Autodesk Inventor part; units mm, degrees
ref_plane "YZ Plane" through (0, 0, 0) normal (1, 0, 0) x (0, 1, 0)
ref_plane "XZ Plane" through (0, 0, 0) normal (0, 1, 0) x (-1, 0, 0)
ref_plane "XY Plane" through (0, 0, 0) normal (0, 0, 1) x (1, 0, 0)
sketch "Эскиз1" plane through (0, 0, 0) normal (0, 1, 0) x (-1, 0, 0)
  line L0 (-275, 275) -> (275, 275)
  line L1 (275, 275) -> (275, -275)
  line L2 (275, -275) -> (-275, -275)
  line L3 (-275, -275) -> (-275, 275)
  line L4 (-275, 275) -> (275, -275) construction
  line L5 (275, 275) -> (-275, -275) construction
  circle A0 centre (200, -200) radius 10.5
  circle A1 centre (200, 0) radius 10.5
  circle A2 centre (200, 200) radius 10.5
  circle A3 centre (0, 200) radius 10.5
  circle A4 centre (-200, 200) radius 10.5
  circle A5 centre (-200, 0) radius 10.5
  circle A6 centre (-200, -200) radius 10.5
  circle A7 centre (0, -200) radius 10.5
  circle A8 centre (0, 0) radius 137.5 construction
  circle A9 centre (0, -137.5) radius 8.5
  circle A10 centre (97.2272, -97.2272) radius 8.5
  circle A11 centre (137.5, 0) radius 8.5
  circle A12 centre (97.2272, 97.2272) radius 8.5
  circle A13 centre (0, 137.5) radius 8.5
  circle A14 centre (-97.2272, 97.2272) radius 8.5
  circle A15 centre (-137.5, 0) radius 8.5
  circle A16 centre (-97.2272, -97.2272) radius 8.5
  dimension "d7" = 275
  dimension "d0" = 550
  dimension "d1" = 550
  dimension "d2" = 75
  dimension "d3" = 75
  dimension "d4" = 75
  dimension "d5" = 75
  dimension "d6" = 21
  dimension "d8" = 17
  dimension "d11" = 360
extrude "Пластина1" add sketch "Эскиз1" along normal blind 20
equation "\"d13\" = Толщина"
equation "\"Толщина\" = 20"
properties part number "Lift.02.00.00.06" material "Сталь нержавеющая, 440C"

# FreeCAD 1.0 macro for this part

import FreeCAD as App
import Part
import Sketcher
from FreeCAD import Vector


def add_polygon(sketch, points):
    """Adds a closed chain of lines whose ends are joined by coincident constraints."""
    first, n = sketch.GeometryCount, len(points)
    for a, b in zip(points, points[1:] + points[:1]):
        sketch.addGeometry(Part.LineSegment(App.Vector(*a, 0), App.Vector(*b, 0)), False)
    for i in range(n):
        sketch.addConstraint(Sketcher.Constraint("Coincident", first + i, 2, first + (i + 1) % n, 1))

doc = App.newDocument("Part")
body = doc.addObject("PartDesign::Body", "Body")

# Sketch on XZ plane
sketch1 = body.newObject("Sketcher::SketchObject", "Sketch")
sketch1.AttachmentSupport = (doc.getObject("XZ_Plane"), [""])
sketch1.MapMode = "FlatFace"
add_polygon(sketch1, [(-275, 275), (275, 275), (275, -275), (-275, -275)])  # lines 0-3
sketch1.addGeometry(Part.Circle(Vector(200, -200, 0), Vector(0, 0, 1), 10), False)  # 4
sketch1.addGeometry(Part.Circle(Vector(97, -97, 0), Vector(0, 0, 1), 8), False)  # 5
sketch1.addGeometry(Part.Circle(Vector(0, -200, 0), Vector(0, 0, 1), 10), False)  # 6
sketch1.addGeometry(Part.Circle(Vector(-200, -200, 0), Vector(0, 0, 1), 10), False)  # 7
sketch1.addGeometry(Part.Circle(Vector(0, -138, 0), Vector(0, 0, 1), 8), False)  # 8
sketch1.addGeometry(Part.Circle(Vector(-97, -97, 0), Vector(0, 0, 1), 8), False)  # 9
sketch1.addGeometry(Part.Circle(Vector(200, 0, 0), Vector(0, 0, 1), 10), False)  # 10
sketch1.addGeometry(Part.Circle(Vector(138, 0, 0), Vector(0, 0, 1), 8), False)  # 11
sketch1.addGeometry(Part.Circle(Vector(97, 97, 0), Vector(0, 0, 1), 8), False)  # 12
sketch1.addGeometry(Part.Circle(Vector(200, 200, 0), Vector(0, 0, 1), 10), False)  # 13
sketch1.addGeometry(Part.Circle(Vector(-97, 97, 0), Vector(0, 0, 1), 8), False)  # 14
sketch1.addGeometry(Part.Circle(Vector(-138, 0, 0), Vector(0, 0, 1), 8), False)  # 15
sketch1.addGeometry(Part.Circle(Vector(-200, 0, 0), Vector(0, 0, 1), 10), False)  # 16
sketch1.addGeometry(Part.Circle(Vector(0, 138, 0), Vector(0, 0, 1), 8), False)  # 17
sketch1.addGeometry(Part.Circle(Vector(0, 200, 0), Vector(0, 0, 1), 10), False)  # 18
sketch1.addGeometry(Part.Circle(Vector(-200, 200, 0), Vector(0, 0, 1), 10), False)  # 19
sketch1.addConstraint(Sketcher.Constraint("Horizontal", 0))
sketch1.addConstraint(Sketcher.Constraint("Vertical", 1))
sketch1.addConstraint(Sketcher.Constraint("Horizontal", 2))
sketch1.addConstraint(Sketcher.Constraint("Vertical", 3))
sketch1.addConstraint(Sketcher.Constraint("Equal", 4, 6))
sketch1.addConstraint(Sketcher.Constraint("Equal", 6, 7))
sketch1.addConstraint(Sketcher.Constraint("Equal", 5, 8))
sketch1.addConstraint(Sketcher.Constraint("Equal", 8, 9))
sketch1.addConstraint(Sketcher.Constraint("Equal", 7, 10))
sketch1.addConstraint(Sketcher.Constraint("Equal", 9, 11))
sketch1.addConstraint(Sketcher.Constraint("Equal", 11, 12))
sketch1.addConstraint(Sketcher.Constraint("Equal", 10, 13))
sketch1.addConstraint(Sketcher.Constraint("Equal", 12, 14))
sketch1.addConstraint(Sketcher.Constraint("Equal", 14, 15))
sketch1.addConstraint(Sketcher.Constraint("Equal", 13, 16))
sketch1.addConstraint(Sketcher.Constraint("Equal", 15, 17))
sketch1.addConstraint(Sketcher.Constraint("Equal", 16, 18))
sketch1.addConstraint(Sketcher.Constraint("Equal", 18, 19))
sketch1.addConstraint(Sketcher.Constraint("Symmetric", 9, 3, 12, 3, -1, 1))
sketch1.addConstraint(Sketcher.Constraint("Symmetric", 7, 3, 13, 3, -1, 1))
sketch1.addConstraint(Sketcher.Constraint("Symmetric", 5, 3, 14, 3, -1, 1))
sketch1.addConstraint(Sketcher.Constraint("Symmetric", 11, 3, 15, 3, -1, 1))
sketch1.addConstraint(Sketcher.Constraint("Symmetric", 10, 3, 16, 3, -1, 1))
sketch1.addConstraint(Sketcher.Constraint("Symmetric", 8, 3, 17, 3, -1, 1))
sketch1.addConstraint(Sketcher.Constraint("Symmetric", 6, 3, 18, 3, -1, 1))
sketch1.addConstraint(Sketcher.Constraint("Symmetric", 4, 3, 19, 3, -1, 1))
sketch1.addConstraint(Sketcher.Constraint("Symmetric", 0, 2, 2, 2, -1, 1))
sketch1.addConstraint(Sketcher.Constraint("Symmetric", 4, 3, 7, 3, -2))
sketch1.addConstraint(Sketcher.Constraint("Symmetric", 5, 3, 9, 3, -2))
sketch1.addConstraint(Sketcher.Constraint("PointOnObject", 6, 3, -2))
sketch1.addConstraint(Sketcher.Constraint("PointOnObject", 8, 3, -2))
sketch1.addConstraint(Sketcher.Constraint("PointOnObject", 10, 3, -1))
sketch1.addConstraint(Sketcher.Constraint("PointOnObject", 11, 3, -1))
sketch1.addConstraint(Sketcher.Constraint("Horizontal", 4, 3, 6, 3))
sketch1.addConstraint(Sketcher.Constraint("Vertical", 4, 3, 10, 3))
sketch1.addConstraint(Sketcher.Constraint("Equal", 2, 1))
sketch1.addConstraint(Sketcher.Constraint("Diameter", 4, 21.0))
sketch1.addConstraint(Sketcher.Constraint("Diameter", 5, 17.0))
sketch1.addConstraint(Sketcher.Constraint("DistanceX", 0, 1, 0, 2, 550.0))
sketch1.addConstraint(Sketcher.Constraint("DistanceX", 13, 3, 0, 2, 75.0))
sketch1.addConstraint(Sketcher.Constraint("DistanceY", 13, 3, 0, 2, 75.0))
sketch1.addConstraint(Sketcher.Constraint("DistanceY", 8, 3, -1, 1, 137.5))
sketch1.addConstraint(Sketcher.Constraint("DistanceX", -1, 1, 11, 3, 137.5))
sketch1.addConstraint(Sketcher.Constraint("DistanceX", -1, 1, 5, 3, 97.2272))
sketch1.addConstraint(Sketcher.Constraint("DistanceY", 5, 3, -1, 1, 97.2272))
pad1 = body.newObject("PartDesign::Pad", "Pad")
pad1.Profile = sketch1
pad1.Length = 20
pad1.Reversed = True

doc.recompute()
